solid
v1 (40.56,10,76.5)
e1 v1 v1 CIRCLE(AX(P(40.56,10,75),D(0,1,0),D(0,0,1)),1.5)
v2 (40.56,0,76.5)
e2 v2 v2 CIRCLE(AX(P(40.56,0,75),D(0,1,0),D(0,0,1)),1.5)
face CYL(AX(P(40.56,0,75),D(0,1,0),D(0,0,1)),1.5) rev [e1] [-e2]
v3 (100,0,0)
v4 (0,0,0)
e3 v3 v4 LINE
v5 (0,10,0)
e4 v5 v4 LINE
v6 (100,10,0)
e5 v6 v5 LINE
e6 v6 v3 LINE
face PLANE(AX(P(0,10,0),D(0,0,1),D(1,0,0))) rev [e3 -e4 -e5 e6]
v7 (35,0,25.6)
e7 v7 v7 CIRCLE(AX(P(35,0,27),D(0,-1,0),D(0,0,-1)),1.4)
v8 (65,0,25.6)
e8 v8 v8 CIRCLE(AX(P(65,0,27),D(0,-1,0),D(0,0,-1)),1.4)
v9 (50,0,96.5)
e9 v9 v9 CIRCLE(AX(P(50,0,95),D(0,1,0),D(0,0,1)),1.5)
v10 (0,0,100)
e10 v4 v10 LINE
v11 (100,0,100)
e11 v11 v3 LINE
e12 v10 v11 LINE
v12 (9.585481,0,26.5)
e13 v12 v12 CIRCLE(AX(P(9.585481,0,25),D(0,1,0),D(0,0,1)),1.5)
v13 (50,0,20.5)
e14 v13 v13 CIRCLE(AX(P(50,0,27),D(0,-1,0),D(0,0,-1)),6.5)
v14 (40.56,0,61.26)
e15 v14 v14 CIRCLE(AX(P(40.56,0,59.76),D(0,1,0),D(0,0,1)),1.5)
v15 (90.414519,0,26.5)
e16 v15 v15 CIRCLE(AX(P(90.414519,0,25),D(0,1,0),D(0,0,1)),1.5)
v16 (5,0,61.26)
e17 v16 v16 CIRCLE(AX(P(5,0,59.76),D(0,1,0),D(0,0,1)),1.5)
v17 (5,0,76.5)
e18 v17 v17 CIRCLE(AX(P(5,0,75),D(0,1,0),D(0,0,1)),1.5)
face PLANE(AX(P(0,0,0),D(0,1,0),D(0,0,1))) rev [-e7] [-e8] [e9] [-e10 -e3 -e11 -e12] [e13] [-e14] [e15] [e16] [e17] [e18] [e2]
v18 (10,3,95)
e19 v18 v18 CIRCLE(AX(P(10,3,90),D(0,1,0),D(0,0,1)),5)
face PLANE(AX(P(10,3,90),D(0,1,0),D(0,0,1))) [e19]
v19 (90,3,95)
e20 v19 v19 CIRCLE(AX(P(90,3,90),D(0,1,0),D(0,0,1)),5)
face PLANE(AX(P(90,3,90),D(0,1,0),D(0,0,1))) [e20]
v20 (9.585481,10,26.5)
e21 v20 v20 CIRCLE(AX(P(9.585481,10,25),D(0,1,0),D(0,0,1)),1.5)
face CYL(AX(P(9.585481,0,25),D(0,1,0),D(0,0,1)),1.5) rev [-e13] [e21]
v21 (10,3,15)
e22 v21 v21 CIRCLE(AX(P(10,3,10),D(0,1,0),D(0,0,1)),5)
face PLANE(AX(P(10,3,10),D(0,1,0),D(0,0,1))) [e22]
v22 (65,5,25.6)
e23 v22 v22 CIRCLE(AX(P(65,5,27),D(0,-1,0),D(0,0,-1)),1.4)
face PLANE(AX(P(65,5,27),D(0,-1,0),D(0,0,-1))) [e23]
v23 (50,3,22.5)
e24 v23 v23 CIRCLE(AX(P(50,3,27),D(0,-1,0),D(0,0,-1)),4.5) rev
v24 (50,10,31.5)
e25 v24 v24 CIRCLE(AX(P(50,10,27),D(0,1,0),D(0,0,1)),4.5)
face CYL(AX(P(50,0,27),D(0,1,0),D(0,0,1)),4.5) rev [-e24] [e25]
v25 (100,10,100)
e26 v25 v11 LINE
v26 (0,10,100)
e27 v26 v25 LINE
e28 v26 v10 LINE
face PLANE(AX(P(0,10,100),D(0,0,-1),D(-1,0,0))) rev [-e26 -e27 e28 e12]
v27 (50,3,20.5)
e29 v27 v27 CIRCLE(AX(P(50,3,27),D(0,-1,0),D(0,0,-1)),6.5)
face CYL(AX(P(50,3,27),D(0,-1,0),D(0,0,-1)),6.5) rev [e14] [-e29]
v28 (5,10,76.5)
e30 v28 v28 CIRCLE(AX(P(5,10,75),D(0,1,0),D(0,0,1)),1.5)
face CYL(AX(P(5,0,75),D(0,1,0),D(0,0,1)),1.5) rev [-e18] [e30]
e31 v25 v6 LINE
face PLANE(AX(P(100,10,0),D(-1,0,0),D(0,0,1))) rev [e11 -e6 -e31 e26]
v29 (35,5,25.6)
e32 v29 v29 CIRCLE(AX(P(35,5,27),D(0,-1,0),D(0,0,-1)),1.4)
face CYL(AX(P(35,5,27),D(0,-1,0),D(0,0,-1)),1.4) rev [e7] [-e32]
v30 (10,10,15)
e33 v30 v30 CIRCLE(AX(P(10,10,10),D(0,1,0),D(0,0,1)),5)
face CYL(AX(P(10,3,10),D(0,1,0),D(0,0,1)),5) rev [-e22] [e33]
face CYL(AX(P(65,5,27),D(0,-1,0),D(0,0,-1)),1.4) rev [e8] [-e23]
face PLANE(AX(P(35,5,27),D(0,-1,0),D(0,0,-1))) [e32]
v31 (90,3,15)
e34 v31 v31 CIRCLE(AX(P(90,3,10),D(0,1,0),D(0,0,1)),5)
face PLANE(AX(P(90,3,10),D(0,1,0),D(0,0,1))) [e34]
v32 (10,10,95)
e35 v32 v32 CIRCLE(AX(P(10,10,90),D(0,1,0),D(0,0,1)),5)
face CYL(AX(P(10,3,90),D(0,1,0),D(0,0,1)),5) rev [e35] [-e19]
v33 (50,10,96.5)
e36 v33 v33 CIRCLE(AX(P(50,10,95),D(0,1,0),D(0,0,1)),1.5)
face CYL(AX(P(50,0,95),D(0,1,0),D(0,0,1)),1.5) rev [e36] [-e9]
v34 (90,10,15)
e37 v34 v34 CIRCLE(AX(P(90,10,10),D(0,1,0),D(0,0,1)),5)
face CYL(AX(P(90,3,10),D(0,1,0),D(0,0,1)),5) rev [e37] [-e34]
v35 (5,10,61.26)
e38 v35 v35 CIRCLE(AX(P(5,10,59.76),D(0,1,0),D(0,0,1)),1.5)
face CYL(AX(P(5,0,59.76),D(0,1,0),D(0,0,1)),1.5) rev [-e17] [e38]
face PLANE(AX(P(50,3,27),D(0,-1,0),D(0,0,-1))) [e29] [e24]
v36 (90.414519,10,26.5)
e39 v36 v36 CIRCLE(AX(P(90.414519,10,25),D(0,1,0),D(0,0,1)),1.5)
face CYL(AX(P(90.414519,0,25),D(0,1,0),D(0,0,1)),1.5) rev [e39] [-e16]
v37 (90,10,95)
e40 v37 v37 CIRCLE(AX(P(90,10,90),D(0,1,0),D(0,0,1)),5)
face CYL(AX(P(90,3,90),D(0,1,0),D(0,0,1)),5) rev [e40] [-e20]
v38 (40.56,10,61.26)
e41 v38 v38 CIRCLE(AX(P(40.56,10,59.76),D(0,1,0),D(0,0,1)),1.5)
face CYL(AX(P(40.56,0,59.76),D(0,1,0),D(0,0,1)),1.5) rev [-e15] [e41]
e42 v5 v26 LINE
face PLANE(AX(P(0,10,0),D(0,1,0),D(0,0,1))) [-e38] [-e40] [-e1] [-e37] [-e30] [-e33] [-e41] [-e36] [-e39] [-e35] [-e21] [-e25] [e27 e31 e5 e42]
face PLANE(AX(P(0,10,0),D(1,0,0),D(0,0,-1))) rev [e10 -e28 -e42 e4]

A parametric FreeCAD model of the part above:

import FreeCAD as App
import Part
import Sketcher
from FreeCAD import Vector

doc = App.newDocument("Part")
body = doc.addObject("PartDesign::Body", "Body")

sketch1 = body.newObject("Sketcher::SketchObject", "Sketch")
sketch1.AttachmentSupport = (doc.getObject("XZ_Plane"), [""])
sketch1.MapMode = "FlatFace"
sketch1.addGeometry(Part.LineSegment(Vector(0, 0, 0), Vector(0, 100, 0)), False)
sketch1.addGeometry(Part.LineSegment(Vector(0, 100, 0), Vector(100, 100, 0)), False)
sketch1.addGeometry(Part.LineSegment(Vector(100, 100, 0), Vector(100, 0, 0)), False)
sketch1.addGeometry(Part.LineSegment(Vector(100, 0, 0), Vector(0, 0, 0)), False)
sketch1.addConstraint(Sketcher.Constraint("Coincident", 0, 2, 1, 1))
sketch1.addConstraint(Sketcher.Constraint("Coincident", 1, 2, 2, 1))
sketch1.addConstraint(Sketcher.Constraint("Coincident", 2, 2, 3, 1))
sketch1.addConstraint(Sketcher.Constraint("Coincident", 3, 2, 0, 1))
sketch1.addConstraint(Sketcher.Constraint("Vertical", 0))
sketch1.addConstraint(Sketcher.Constraint("Horizontal", 1))
sketch1.addConstraint(Sketcher.Constraint("Vertical", 2))
sketch1.addConstraint(Sketcher.Constraint("Horizontal", 3))
sketch1.addConstraint(Sketcher.Constraint("Coincident", 3, 2, -1, 1))
sketch1.addConstraint(Sketcher.Constraint("Equal", 3, 0))
sketch1.addConstraint(Sketcher.Constraint("DistanceX", 1, 1, 1, 2, 100.0))
pad1 = body.newObject("PartDesign::Pad", "Pad")
pad1.Profile = sketch1
pad1.Length = 10
pad1.Reversed = True

sketch2 = body.newObject("Sketcher::SketchObject", "Sketch001")
sketch2.AttachmentSupport = (doc.getObject("XZ_Plane"), [""])
sketch2.MapMode = "FlatFace"
sketch2.AttachmentOffset = App.Placement(Vector(0, 0, -10), App.Rotation())
sketch2.addGeometry(Part.Circle(Vector(10, 10, 0), Vector(0, 0, 1), 5), False)
sketch2.addGeometry(Part.Circle(Vector(90, 10, 0), Vector(0, 0, 1), 5), False)
sketch2.addGeometry(Part.Circle(Vector(10, 90, 0), Vector(0, 0, 1), 5), False)
sketch2.addGeometry(Part.Circle(Vector(90, 90, 0), Vector(0, 0, 1), 5), False)
sketch2.addConstraint(Sketcher.Constraint("Equal", 0, 1))
sketch2.addConstraint(Sketcher.Constraint("Equal", 1, 2))
sketch2.addConstraint(Sketcher.Constraint("Equal", 2, 3))
sketch2.addConstraint(Sketcher.Constraint("Horizontal", 0, 3, 1, 3))
sketch2.addConstraint(Sketcher.Constraint("Horizontal", 2, 3, 3, 3))
sketch2.addConstraint(Sketcher.Constraint("Vertical", 0, 3, 2, 3))
sketch2.addConstraint(Sketcher.Constraint("Vertical", 1, 3, 3, 3))
sketch2.addConstraint(Sketcher.Constraint("Diameter", 0, 10.0))
sketch2.addConstraint(Sketcher.Constraint("DistanceX", -1, 1, 0, 3, 10.0))
sketch2.addConstraint(Sketcher.Constraint("DistanceY", -1, 1, 0, 3, 10.0))
sketch2.addConstraint(Sketcher.Constraint("DistanceX", -1, 1, 1, 3, 90.0))
sketch2.addConstraint(Sketcher.Constraint("DistanceY", -1, 1, 2, 3, 90.0))
pocket1 = body.newObject("PartDesign::Pocket", "Pocket")
pocket1.Profile = sketch2
pocket1.Length = 7
pocket1.Reversed = True

sketch3 = body.newObject("Sketcher::SketchObject", "Sketch002")
sketch3.AttachmentSupport = (doc.getObject("XZ_Plane"), [""])
sketch3.MapMode = "FlatFace"
sketch3.AttachmentOffset = App.Placement(Vector(0, 0, -10), App.Rotation())
sketch3.addGeometry(Part.Circle(Vector(50, 95, 0), Vector(0, 0, 1), 1.5), False)
sketch3.addGeometry(Part.Circle(Vector(90.4, 25, 0), Vector(0, 0, 1), 1.5), False)
sketch3.addGeometry(Part.Circle(Vector(9.6, 25, 0), Vector(0, 0, 1), 1.5), False)
sketch3.addConstraint(Sketcher.Constraint("Equal", 0, 1))
sketch3.addConstraint(Sketcher.Constraint("Equal", 1, 2))
sketch3.addConstraint(Sketcher.Constraint("Horizontal", 1, 3, 2, 3))
sketch3.addConstraint(Sketcher.Constraint("Diameter", 0, 3.0))
sketch3.addConstraint(Sketcher.Constraint("DistanceX", -1, 1, 0, 3, 50.0))
sketch3.addConstraint(Sketcher.Constraint("DistanceY", -1, 1, 0, 3, 95.0))
sketch3.addConstraint(Sketcher.Constraint("DistanceY", -1, 1, 1, 3, 25.0))
sketch3.addConstraint(Sketcher.Constraint("DistanceX", -1, 1, 1, 3, 90.414519))
sketch3.addConstraint(Sketcher.Constraint("DistanceX", -1, 1, 2, 3, 9.585481))
pocket2 = body.newObject("PartDesign::Pocket", "Pocket001")
pocket2.Profile = sketch3
pocket2.Type = "ThroughAll"
pocket2.Reversed = True

sketch4 = body.newObject("Sketcher::SketchObject", "Sketch003")
sketch4.AttachmentSupport = (doc.getObject("XZ_Plane"), [""])
sketch4.MapMode = "FlatFace"
sketch4.AttachmentOffset = App.Placement(Vector(0, 0, -10), App.Rotation())
sketch4.addGeometry(Part.Circle(Vector(50, 27, 0), Vector(0, 0, 1), 4.5), False)
sketch4.addConstraint(Sketcher.Constraint("Diameter", 0, 9.0))
sketch4.addConstraint(Sketcher.Constraint("DistanceX", -1, 1, 0, 3, 50.0))
sketch4.addConstraint(Sketcher.Constraint("DistanceY", -1, 1, 0, 3, 27.0))
pocket3 = body.newObject("PartDesign::Pocket", "Pocket002")
pocket3.Profile = sketch4
pocket3.Type = "ThroughAll"
pocket3.Reversed = True

sketch5 = body.newObject("Sketcher::SketchObject", "Sketch004")
sketch5.AttachmentSupport = (doc.getObject("XZ_Plane"), [""])
sketch5.MapMode = "FlatFace"
sketch5.addGeometry(Part.Circle(Vector(50, 27, 0), Vector(0, 0, 1), 6), False)
sketch5.addConstraint(Sketcher.Constraint("Diameter", 0, 13.0))
sketch5.addConstraint(Sketcher.Constraint("DistanceX", -1, 1, 0, 3, 50.0))
sketch5.addConstraint(Sketcher.Constraint("DistanceY", -1, 1, 0, 3, 27.0))
pocket4 = body.newObject("PartDesign::Pocket", "Pocket003")
pocket4.Profile = sketch5
pocket4.Length = 3

sketch6 = body.newObject("Sketcher::SketchObject", "Sketch005")
sketch6.AttachmentSupport = (doc.getObject("XZ_Plane"), [""])
sketch6.MapMode = "FlatFace"
sketch6.AttachmentOffset = App.Placement(Vector(0, 0, -10), App.Rotation())
sketch6.addGeometry(Part.Circle(Vector(40.6, 59.8, 0), Vector(0, 0, 1), 1.5), False)
sketch6.addGeometry(Part.Circle(Vector(40.6, 75, 0), Vector(0, 0, 1), 1.5), False)
sketch6.addGeometry(Part.Circle(Vector(5, 59.8, 0), Vector(0, 0, 1), 1.5), False)
sketch6.addGeometry(Part.Circle(Vector(5, 75, 0), Vector(0, 0, 1), 1.5), False)
sketch6.addConstraint(Sketcher.Constraint("Equal", 0, 1))
sketch6.addConstraint(Sketcher.Constraint("Equal", 1, 2))
sketch6.addConstraint(Sketcher.Constraint("Equal", 2, 3))
sketch6.addConstraint(Sketcher.Constraint("Horizontal", 0, 3, 2, 3))
sketch6.addConstraint(Sketcher.Constraint("Horizontal", 1, 3, 3, 3))
sketch6.addConstraint(Sketcher.Constraint("Vertical", 0, 3, 1, 3))
sketch6.addConstraint(Sketcher.Constraint("Vertical", 2, 3, 3, 3))
sketch6.addConstraint(Sketcher.Constraint("Diameter", 0, 3.0))
sketch6.addConstraint(Sketcher.Constraint("DistanceY", -1, 1, 1, 3, 75.0))
sketch6.addConstraint(Sketcher.Constraint("DistanceX", -1, 1, 2, 3, 5.0))
sketch6.addConstraint(Sketcher.Constraint("DistanceX", -1, 1, 0, 3, 40.56))
sketch6.addConstraint(Sketcher.Constraint("DistanceY", -1, 1, 0, 3, 59.76))
pocket5 = body.newObject("PartDesign::Pocket", "Pocket004")
pocket5.Profile = sketch6
pocket5.Type = "ThroughAll"
pocket5.Reversed = True

sketch7 = body.newObject("Sketcher::SketchObject", "Sketch006")
sketch7.AttachmentSupport = (doc.getObject("XZ_Plane"), [""])
sketch7.MapMode = "FlatFace"
sketch7.addGeometry(Part.Circle(Vector(65, 27, 0), Vector(0, 0, 1), 1.4), False)
sketch7.addGeometry(Part.Circle(Vector(35, 27, 0), Vector(0, 0, 1), 1.4), False)
sketch7.addConstraint(Sketcher.Constraint("Equal", 0, 1))
sketch7.addConstraint(Sketcher.Constraint("Horizontal", 0, 3, 1, 3))
sketch7.addConstraint(Sketcher.Constraint("Diameter", 0, 2.8))
sketch7.addConstraint(Sketcher.Constraint("DistanceX", -1, 1, 0, 3, 65.0))
sketch7.addConstraint(Sketcher.Constraint("DistanceY", -1, 1, 0, 3, 27.0))
sketch7.addConstraint(Sketcher.Constraint("DistanceX", -1, 1, 1, 3, 35.0))
pocket6 = body.newObject("PartDesign::Pocket", "Pocket005")
pocket6.Profile = sketch7
pocket6.Length = 5

doc.recompute()
